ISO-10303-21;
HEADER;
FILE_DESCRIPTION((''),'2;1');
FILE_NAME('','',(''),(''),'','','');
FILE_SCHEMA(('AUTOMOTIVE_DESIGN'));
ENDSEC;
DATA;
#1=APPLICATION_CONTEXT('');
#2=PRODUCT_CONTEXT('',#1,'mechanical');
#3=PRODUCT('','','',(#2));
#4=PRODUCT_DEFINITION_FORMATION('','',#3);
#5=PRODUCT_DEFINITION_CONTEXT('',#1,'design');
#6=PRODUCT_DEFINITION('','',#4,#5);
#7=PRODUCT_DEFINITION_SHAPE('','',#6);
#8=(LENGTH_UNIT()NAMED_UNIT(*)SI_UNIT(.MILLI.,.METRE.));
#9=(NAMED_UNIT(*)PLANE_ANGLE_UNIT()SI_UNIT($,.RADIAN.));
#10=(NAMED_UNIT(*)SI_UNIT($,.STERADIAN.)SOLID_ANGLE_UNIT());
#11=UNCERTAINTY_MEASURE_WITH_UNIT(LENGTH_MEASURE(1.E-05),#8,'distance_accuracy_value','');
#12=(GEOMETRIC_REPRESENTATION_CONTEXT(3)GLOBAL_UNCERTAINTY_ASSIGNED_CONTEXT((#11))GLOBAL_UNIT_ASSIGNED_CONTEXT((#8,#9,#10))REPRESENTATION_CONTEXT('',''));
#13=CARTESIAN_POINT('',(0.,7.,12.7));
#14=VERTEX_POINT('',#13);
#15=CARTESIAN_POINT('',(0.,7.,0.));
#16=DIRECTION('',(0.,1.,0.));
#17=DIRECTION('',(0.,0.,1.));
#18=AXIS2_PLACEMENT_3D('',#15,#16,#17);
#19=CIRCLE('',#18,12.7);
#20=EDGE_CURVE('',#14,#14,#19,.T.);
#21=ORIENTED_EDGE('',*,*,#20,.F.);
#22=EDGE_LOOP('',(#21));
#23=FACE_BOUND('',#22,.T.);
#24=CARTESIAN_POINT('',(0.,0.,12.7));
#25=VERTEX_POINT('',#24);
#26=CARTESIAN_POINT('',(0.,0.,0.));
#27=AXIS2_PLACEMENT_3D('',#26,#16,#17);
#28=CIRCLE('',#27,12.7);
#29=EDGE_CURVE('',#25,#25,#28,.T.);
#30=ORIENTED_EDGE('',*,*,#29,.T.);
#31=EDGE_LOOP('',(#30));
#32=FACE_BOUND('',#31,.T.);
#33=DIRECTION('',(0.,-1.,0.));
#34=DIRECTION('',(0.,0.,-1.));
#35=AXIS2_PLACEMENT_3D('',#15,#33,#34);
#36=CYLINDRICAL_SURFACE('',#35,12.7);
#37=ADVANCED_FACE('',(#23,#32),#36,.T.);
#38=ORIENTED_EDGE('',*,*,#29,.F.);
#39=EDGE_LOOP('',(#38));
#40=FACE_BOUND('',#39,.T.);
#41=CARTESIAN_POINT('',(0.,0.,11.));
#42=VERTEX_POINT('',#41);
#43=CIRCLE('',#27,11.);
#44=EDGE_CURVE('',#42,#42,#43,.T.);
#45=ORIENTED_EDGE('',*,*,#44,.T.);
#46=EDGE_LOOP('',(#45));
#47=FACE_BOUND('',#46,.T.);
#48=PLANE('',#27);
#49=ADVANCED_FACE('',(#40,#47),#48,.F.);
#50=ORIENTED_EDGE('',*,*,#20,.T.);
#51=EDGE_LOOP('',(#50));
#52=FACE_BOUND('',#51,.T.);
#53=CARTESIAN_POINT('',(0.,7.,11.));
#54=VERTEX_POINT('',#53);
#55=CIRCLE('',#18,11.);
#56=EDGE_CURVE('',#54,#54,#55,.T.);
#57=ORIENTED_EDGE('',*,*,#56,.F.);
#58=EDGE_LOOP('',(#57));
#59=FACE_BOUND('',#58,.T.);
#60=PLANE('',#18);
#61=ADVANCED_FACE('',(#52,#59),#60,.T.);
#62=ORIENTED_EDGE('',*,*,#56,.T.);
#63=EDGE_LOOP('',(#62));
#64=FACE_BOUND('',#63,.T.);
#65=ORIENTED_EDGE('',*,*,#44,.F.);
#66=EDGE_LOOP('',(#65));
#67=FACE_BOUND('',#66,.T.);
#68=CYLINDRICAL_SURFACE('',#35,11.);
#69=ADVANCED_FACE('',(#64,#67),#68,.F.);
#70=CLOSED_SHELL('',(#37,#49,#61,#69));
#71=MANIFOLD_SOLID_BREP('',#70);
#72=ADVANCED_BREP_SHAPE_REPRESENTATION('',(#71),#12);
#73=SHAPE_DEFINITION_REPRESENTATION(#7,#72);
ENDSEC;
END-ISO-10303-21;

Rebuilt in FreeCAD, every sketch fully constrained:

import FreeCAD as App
import Part
import Sketcher
Q = App.Units.Quantity

doc = App.newDocument("Part")
params = doc.addObject("Spreadsheet::Sheet", "Params")
for row, (alias, value) in enumerate([
    ("sketch1_diameter", "22 mm"),
    ("sketch1_diameter2", "25.4 mm"),
    ("pad1_length", "7 mm"),
], start=1):
    params.set(f"A{row}", alias)
    params.set(f"B{row}", "=" + value)
    params.setAlias(f"B{row}", alias)

body = doc.addObject("PartDesign::Body", "Body")

# Sketch on XZ plane
sketch1 = doc.addObject("Sketcher::SketchObject", "Sketch")
body.addObject(sketch1)
sketch1.AttachmentSupport = (doc.XZ_Plane, [""])
sketch1.MapMode = "FlatFace"
sketch1.addGeometry([
    Part.Circle(App.Vector(0, 0, 0), App.Vector(0, 0, 1), 13),
    Part.Circle(App.Vector(0, 0, 0), App.Vector(0, 0, 1), 11),
], False)
sketch1.addConstraint([
    Sketcher.Constraint("Coincident", 0, 3, -1, 1),
    Sketcher.Constraint("Coincident", 1, 3, -1, 1),
    Sketcher.Constraint("Diameter", 1, Q("22 mm")),
    Sketcher.Constraint("Diameter", 0, Q("25.4 mm")),
])
sketch1.setExpression("Constraints[2]", "Params.sketch1_diameter")
sketch1.setExpression("Constraints[3]", "Params.sketch1_diameter2")
pad1 = doc.addObject("PartDesign::Pad", "Pad")
body.addObject(pad1)
pad1.Profile = sketch1
pad1.setExpression("Length", "Params.pad1_length")
pad1.Reversed = True

doc.recompute()
